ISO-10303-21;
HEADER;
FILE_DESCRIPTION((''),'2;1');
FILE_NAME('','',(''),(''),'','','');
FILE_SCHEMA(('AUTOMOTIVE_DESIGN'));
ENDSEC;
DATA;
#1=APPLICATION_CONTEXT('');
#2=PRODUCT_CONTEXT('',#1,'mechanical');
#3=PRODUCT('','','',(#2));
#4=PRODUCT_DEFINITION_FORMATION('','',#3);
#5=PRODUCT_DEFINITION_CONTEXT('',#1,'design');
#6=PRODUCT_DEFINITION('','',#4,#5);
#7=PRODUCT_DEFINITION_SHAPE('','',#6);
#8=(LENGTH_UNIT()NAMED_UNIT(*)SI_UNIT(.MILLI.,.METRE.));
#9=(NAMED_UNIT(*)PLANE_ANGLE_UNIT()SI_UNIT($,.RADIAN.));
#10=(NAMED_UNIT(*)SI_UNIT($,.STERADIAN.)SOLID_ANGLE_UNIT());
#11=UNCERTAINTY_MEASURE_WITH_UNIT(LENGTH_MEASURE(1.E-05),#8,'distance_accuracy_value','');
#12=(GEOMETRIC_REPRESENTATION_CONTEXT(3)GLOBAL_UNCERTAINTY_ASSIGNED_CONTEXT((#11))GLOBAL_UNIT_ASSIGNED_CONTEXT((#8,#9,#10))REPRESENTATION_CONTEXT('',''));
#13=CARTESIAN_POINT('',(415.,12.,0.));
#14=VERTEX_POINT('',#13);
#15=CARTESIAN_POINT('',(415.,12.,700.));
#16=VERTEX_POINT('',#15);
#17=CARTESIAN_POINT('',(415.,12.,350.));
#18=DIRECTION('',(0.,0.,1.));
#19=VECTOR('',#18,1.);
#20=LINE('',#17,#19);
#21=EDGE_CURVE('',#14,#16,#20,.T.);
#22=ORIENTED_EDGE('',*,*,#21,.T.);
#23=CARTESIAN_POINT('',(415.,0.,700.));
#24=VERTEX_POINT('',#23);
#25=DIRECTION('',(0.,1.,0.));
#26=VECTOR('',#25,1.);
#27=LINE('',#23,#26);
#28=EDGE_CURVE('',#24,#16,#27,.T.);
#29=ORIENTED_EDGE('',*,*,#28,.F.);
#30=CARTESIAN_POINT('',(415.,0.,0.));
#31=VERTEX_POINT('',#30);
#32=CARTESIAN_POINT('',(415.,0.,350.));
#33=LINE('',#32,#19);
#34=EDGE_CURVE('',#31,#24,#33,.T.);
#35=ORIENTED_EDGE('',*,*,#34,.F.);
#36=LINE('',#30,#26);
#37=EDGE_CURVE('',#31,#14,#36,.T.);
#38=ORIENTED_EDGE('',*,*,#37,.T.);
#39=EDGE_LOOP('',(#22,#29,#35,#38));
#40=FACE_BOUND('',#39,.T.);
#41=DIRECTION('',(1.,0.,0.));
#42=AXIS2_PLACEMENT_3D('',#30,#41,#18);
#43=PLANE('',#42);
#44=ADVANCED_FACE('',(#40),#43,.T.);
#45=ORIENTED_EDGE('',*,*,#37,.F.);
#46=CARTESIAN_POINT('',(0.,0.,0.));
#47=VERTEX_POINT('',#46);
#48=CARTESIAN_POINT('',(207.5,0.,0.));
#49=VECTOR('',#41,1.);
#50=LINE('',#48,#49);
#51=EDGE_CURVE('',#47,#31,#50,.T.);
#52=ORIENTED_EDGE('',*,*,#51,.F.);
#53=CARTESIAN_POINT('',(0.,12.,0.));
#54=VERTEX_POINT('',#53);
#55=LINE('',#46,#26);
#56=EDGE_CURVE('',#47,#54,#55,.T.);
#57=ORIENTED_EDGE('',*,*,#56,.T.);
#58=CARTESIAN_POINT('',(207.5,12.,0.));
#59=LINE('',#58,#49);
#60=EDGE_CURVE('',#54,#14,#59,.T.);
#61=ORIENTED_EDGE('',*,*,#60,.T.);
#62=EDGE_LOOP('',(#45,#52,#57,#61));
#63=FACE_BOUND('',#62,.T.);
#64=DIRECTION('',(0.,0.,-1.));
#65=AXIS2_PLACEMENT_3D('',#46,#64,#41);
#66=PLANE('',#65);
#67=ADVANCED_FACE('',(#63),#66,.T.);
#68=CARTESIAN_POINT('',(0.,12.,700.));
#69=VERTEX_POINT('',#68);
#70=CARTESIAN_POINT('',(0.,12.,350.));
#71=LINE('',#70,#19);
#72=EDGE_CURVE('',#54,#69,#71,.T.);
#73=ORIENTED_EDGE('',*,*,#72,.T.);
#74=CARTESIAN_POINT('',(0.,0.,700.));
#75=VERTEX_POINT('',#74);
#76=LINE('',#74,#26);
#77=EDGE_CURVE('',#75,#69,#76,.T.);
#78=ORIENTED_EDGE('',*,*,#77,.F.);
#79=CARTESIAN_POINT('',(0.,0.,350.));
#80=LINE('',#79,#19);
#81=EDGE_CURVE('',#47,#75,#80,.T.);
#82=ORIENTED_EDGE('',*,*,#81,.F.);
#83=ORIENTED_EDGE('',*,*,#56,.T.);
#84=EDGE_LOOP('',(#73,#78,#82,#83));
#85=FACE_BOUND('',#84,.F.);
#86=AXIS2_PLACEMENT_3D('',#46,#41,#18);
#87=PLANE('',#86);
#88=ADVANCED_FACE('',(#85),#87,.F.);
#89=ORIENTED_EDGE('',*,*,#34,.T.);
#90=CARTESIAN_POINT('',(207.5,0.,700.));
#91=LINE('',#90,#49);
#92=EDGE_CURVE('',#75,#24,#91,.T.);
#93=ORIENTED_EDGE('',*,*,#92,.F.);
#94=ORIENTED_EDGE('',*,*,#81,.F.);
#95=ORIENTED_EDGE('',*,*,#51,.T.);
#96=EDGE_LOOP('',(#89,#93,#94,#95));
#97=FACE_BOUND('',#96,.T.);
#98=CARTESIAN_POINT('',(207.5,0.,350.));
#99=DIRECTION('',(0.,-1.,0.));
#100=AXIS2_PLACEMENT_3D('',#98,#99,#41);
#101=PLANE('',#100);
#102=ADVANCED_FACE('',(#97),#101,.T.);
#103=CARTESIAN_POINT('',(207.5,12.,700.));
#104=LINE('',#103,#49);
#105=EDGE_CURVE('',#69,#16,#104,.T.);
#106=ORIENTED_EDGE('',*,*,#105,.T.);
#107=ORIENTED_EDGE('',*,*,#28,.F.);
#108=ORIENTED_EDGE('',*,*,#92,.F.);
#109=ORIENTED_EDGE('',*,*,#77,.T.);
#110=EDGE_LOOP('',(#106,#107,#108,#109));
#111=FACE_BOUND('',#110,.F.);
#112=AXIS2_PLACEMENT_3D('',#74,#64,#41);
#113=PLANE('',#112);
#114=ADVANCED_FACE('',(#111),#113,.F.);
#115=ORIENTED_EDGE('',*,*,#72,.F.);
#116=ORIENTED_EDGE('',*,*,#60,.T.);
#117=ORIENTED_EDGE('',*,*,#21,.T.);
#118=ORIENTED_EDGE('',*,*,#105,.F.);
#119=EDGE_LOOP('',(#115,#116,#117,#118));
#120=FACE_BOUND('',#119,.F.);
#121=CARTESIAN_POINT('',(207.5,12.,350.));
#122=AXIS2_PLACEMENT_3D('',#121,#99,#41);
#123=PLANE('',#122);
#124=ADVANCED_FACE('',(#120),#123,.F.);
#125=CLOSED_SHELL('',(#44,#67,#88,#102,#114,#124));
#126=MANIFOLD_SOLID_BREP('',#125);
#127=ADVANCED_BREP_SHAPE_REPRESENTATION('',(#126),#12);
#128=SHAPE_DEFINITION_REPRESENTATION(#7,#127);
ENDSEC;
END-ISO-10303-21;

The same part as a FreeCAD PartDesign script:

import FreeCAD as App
import Part
import Sketcher
Q = App.Units.Quantity


def add_polygon(sketch, points):
    """Adds a closed chain of lines whose ends are joined by coincident constraints."""
    first, n = sketch.GeometryCount, len(points)
    for a, b in zip(points, points[1:] + points[:1]):
        sketch.addGeometry(Part.LineSegment(App.Vector(*a, 0), App.Vector(*b, 0)), False)
    for i in range(n):
        sketch.addConstraint(Sketcher.Constraint("Coincident", first + i, 2, first + (i + 1) % n, 1))

doc = App.newDocument("Part")
params = doc.addObject("Spreadsheet::Sheet", "Params")
for row, (alias, value) in enumerate([
    ("sketch1_width", "415 mm"),
    ("sketch1_height", "700 mm"),
    ("pad1_length", "12 mm"),
], start=1):
    params.set(f"A{row}", alias)
    params.set(f"B{row}", "=" + value)
    params.setAlias(f"B{row}", alias)

body = doc.addObject("PartDesign::Body", "Body")

sketch1 = doc.addObject("Sketcher::SketchObject", "Sketch")
body.addObject(sketch1)
sketch1.AttachmentSupport = (doc.XZ_Plane, [""])
sketch1.MapMode = "FlatFace"
add_polygon(sketch1, [(0, 700), (0, 0), (415, 0), (415, 700)])
sketch1.addConstraint([
    Sketcher.Constraint("Vertical", 0),
    Sketcher.Constraint("Horizontal", 1),
    Sketcher.Constraint("Vertical", 2),
    Sketcher.Constraint("Horizontal", 3),
    Sketcher.Constraint("Coincident", 0, 2, -1, 1),
    Sketcher.Constraint("DistanceX", 1, 1, 1, 2, Q("415 mm")),
    Sketcher.Constraint("DistanceY", 0, 2, 0, 1, Q("700 mm")),
])
sketch1.setExpression("Constraints[9]", "Params.sketch1_width")
sketch1.setExpression("Constraints[10]", "Params.sketch1_height")
pad1 = doc.addObject("PartDesign::Pad", "Pad")
body.addObject(pad1)
pad1.Profile = sketch1
pad1.setExpression("Length", "Params.pad1_length")
pad1.Reversed = True

doc.recompute()
